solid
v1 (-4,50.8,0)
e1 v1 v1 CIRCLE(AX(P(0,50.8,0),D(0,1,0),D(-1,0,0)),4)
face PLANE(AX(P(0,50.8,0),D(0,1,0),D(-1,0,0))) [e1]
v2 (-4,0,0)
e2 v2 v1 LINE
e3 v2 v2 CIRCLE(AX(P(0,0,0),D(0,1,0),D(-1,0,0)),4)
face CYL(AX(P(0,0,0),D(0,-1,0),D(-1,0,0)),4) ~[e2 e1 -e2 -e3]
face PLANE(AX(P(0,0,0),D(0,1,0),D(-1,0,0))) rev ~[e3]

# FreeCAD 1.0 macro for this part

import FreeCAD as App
import Part
import Sketcher

V = App.Vector
Q = App.Units.Quantity

doc = App.newDocument("Part")
body = doc.addObject("PartDesign::Body", "Body")

# Sketch on XZ plane
sketch1 = body.newObject("Sketcher::SketchObject", "Sketch")
sketch1.AttachmentSupport = (doc.getObject("XZ_Plane"), [""])
sketch1.MapMode = "FlatFace"
sketch1.addGeometry(Part.Circle(V(0, 0, 0), V(0, 0, 1), 4), False)
sketch1.addConstraint(Sketcher.Constraint("Coincident", 0, 3, -1, 1))
sketch1.addConstraint(Sketcher.Constraint("Diameter", 0, Q("8 mm")))
pad1 = body.newObject("PartDesign::Pad", "Pad")
pad1.Profile = sketch1
pad1.Length = 50.8
pad1.Reversed = True

doc.recompute()
